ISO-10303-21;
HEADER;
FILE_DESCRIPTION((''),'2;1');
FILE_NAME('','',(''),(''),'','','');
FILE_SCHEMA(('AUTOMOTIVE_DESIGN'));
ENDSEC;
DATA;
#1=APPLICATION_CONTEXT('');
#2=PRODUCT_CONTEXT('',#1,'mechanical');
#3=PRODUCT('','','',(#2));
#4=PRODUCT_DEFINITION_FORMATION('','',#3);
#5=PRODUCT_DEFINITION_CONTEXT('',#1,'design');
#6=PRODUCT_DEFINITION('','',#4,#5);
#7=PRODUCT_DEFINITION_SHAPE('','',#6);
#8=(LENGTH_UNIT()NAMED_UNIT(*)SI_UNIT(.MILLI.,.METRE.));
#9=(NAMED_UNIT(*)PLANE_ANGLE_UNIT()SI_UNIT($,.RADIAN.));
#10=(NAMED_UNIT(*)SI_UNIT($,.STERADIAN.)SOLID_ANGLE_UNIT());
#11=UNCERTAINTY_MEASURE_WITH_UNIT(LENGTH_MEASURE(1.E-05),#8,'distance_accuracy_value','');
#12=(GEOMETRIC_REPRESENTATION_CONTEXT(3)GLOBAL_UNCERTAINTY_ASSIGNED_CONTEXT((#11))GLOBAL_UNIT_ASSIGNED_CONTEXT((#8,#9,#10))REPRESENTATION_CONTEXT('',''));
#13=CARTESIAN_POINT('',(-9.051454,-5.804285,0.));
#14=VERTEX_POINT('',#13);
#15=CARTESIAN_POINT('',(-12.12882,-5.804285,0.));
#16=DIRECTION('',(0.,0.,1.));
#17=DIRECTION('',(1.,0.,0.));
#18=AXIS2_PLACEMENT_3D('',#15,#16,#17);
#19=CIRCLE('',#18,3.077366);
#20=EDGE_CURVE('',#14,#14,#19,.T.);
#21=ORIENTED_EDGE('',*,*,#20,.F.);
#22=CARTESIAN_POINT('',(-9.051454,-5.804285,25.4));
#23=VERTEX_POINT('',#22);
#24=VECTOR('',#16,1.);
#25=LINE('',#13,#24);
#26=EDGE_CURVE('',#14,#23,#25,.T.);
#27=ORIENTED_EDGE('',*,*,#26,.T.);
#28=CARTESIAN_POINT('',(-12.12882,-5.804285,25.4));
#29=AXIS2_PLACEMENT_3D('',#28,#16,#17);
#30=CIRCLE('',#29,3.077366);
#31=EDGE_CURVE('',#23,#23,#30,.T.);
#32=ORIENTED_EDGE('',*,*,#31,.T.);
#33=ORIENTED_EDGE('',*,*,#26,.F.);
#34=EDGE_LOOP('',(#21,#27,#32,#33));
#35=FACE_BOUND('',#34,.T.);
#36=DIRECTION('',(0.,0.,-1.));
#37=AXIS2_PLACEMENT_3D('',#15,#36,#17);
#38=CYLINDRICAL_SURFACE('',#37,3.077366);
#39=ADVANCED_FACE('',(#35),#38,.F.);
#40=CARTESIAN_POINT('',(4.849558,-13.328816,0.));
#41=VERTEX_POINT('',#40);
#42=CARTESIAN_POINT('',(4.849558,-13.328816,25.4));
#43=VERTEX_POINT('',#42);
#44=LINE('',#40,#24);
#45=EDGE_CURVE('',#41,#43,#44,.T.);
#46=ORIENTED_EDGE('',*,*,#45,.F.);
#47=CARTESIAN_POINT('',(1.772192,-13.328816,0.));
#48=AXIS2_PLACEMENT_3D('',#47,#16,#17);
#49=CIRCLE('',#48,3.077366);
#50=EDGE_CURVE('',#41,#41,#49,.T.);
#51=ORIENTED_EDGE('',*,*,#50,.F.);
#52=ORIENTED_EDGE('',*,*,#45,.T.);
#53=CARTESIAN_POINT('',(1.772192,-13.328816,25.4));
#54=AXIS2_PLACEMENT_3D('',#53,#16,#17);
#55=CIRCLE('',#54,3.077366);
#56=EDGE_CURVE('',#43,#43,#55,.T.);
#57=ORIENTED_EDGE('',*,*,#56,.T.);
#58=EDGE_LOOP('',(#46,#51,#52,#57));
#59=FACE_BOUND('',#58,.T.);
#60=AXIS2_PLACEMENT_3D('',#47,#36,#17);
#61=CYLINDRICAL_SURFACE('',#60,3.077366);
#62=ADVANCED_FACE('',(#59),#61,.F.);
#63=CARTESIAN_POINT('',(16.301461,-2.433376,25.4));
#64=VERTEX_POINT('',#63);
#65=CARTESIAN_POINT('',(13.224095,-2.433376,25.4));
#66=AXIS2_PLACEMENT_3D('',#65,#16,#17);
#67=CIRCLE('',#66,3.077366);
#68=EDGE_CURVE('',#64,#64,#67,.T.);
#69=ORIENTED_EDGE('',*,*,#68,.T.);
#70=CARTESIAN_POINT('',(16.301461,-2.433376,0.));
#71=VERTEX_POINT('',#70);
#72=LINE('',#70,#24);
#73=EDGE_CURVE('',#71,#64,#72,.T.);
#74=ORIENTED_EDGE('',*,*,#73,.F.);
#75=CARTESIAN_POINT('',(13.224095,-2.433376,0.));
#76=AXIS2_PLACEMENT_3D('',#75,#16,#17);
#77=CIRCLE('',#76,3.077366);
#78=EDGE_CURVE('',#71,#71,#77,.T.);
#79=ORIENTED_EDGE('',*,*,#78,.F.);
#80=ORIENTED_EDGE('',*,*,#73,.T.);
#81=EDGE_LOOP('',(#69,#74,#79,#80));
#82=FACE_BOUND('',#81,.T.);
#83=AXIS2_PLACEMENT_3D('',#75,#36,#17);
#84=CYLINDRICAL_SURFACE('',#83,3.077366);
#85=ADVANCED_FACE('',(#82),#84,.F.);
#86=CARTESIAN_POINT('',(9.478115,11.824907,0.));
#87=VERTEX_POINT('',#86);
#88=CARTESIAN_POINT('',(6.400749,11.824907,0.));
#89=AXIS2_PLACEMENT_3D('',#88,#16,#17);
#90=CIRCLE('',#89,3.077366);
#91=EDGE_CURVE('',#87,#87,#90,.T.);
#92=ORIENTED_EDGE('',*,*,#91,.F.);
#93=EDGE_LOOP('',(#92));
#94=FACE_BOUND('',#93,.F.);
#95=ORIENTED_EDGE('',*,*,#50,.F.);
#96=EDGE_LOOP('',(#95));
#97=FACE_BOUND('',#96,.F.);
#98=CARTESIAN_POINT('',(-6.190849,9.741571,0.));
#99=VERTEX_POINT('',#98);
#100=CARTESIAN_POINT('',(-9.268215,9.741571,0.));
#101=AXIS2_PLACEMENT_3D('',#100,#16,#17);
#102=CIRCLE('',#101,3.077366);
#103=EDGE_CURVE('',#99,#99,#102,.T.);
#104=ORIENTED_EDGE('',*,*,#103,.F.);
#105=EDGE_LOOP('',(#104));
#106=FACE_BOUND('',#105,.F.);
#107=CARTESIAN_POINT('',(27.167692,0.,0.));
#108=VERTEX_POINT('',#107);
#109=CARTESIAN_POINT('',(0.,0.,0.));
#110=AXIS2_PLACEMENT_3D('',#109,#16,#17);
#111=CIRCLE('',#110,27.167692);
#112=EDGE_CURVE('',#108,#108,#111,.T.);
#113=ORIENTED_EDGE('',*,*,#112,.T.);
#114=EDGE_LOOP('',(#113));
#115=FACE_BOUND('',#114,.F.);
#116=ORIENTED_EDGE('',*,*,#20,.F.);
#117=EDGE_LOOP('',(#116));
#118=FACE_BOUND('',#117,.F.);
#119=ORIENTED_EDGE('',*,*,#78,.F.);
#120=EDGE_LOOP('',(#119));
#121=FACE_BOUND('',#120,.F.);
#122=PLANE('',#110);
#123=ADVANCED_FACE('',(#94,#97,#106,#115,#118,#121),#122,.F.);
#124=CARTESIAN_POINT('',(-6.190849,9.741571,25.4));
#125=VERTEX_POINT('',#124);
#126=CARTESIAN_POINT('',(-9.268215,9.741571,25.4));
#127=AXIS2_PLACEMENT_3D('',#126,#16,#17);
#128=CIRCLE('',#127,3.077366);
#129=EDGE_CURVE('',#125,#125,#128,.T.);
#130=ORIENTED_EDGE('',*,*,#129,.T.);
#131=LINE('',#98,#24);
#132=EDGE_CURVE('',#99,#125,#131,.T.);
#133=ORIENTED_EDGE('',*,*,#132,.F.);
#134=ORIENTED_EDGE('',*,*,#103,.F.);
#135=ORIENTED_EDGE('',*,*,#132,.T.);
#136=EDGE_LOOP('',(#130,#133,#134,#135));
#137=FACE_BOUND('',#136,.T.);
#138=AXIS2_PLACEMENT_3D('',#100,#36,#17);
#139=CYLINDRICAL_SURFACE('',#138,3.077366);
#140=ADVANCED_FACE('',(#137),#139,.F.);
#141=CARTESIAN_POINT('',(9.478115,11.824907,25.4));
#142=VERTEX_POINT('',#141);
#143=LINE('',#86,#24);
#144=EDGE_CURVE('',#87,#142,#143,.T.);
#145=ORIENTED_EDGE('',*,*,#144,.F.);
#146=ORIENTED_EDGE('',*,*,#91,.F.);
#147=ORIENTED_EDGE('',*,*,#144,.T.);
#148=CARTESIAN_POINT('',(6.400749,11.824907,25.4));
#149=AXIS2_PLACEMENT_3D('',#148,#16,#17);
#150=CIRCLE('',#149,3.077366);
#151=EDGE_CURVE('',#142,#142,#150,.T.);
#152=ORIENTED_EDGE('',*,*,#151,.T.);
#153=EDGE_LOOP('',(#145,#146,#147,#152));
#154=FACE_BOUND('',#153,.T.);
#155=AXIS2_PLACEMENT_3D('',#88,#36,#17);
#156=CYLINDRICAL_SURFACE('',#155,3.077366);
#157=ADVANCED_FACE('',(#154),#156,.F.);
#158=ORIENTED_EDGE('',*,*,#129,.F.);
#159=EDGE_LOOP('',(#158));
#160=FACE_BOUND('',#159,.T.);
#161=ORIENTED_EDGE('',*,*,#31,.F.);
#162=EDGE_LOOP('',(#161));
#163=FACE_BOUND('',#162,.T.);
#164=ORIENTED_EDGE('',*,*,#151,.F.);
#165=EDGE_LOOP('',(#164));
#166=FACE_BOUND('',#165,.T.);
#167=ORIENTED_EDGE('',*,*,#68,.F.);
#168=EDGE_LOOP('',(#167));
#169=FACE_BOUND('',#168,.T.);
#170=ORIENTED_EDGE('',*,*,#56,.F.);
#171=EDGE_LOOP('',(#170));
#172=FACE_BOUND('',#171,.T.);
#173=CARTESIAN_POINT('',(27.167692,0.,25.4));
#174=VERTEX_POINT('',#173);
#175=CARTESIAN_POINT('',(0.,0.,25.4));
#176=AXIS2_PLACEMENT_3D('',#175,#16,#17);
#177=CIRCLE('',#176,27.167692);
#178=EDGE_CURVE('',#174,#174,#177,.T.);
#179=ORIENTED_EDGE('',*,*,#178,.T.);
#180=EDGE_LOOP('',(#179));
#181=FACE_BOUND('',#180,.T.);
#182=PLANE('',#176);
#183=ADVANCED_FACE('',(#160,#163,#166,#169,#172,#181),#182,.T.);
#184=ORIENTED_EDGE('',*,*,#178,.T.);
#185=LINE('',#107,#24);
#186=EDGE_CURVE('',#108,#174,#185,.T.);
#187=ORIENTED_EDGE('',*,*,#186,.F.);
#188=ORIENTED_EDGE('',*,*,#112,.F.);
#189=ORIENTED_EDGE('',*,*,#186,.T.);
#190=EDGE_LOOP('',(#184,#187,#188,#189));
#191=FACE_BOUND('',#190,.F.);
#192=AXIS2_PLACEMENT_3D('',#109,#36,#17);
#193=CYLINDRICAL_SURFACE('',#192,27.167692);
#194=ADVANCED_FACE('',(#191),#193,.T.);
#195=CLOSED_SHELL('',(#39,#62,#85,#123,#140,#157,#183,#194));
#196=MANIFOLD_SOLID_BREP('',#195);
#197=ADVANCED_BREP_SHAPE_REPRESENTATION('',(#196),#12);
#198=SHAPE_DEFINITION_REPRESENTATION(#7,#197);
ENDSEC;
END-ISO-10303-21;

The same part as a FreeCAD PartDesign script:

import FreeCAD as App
import Part
import Sketcher
from FreeCAD import Vector
Q = App.Units.Quantity

doc = App.newDocument("Part")
body = doc.addObject("PartDesign::Body", "Body")

sketch1 = body.newObject("Sketcher::SketchObject", "Sketch")
sketch1.AttachmentSupport = (doc.getObject("XY_Plane"), [""])
sketch1.MapMode = "FlatFace"
sketch1.addGeometry([
    Part.Circle(Vector(0, 0, 0), Vector(0, 0, 1), 27.167692),
    Part.Circle(Vector(-12.12882, -5.804285, 0), Vector(0, 0, 1), 3.077366),
    Part.Circle(Vector(1.772192, -13.328816, 0), Vector(0, 0, 1), 3.077366),
    Part.Circle(Vector(13.224095, -2.433376, 0), Vector(0, 0, 1), 3.077366),
    Part.Circle(Vector(-9.268215, 9.741571, 0), Vector(0, 0, 1), 3.077366),
    Part.Circle(Vector(6.400749, 11.824907, 0), Vector(0, 0, 1), 3.077366),
], False)
sketch1.addConstraint([
    Sketcher.Constraint("Coincident", 0, 3, -1, 1),
    Sketcher.Constraint("Equal", 1, 2),
    Sketcher.Constraint("Equal", 2, 3),
    Sketcher.Constraint("Equal", 3, 4),
    Sketcher.Constraint("Equal", 4, 5),
    Sketcher.Constraint("Diameter", 0, Q("54.335384 mm")),
    Sketcher.Constraint("Diameter", 1, Q("6.154732 mm")),
    Sketcher.Constraint("DistanceX", 1, 3, -1, 1, Q("12.12882 mm")),
    Sketcher.Constraint("DistanceY", -1, 1, 4, 3, Q("9.741571 mm")),
    Sketcher.Constraint("DistanceX", -1, 1, 5, 3, Q("6.400749 mm")),
    Sketcher.Constraint("DistanceY", 2, 3, 1, 3, Q("7.524531 mm")),
    Sketcher.Constraint("DistanceY", 2, 3, 3, 3, Q("10.89544 mm")),
    Sketcher.Constraint("DistanceX", 4, 3, 3, 3, Q("22.49231 mm")),
    Sketcher.Constraint("DistanceY", 1, 3, 5, 3, Q("17.629192 mm")),
    Sketcher.Constraint("DistanceY", 1, 3, -1, 1, Q("5.804285 mm")),
    Sketcher.Constraint("DistanceX", -1, 1, 2, 3, Q("1.772192 mm")),
    Sketcher.Constraint("DistanceX", -1, 1, 3, 3, Q("13.224095 mm")),
])
pad1 = body.newObject("PartDesign::Pad", "Pad")
pad1.Profile = sketch1
pad1.Length = Q("1 in")

doc.recompute()
